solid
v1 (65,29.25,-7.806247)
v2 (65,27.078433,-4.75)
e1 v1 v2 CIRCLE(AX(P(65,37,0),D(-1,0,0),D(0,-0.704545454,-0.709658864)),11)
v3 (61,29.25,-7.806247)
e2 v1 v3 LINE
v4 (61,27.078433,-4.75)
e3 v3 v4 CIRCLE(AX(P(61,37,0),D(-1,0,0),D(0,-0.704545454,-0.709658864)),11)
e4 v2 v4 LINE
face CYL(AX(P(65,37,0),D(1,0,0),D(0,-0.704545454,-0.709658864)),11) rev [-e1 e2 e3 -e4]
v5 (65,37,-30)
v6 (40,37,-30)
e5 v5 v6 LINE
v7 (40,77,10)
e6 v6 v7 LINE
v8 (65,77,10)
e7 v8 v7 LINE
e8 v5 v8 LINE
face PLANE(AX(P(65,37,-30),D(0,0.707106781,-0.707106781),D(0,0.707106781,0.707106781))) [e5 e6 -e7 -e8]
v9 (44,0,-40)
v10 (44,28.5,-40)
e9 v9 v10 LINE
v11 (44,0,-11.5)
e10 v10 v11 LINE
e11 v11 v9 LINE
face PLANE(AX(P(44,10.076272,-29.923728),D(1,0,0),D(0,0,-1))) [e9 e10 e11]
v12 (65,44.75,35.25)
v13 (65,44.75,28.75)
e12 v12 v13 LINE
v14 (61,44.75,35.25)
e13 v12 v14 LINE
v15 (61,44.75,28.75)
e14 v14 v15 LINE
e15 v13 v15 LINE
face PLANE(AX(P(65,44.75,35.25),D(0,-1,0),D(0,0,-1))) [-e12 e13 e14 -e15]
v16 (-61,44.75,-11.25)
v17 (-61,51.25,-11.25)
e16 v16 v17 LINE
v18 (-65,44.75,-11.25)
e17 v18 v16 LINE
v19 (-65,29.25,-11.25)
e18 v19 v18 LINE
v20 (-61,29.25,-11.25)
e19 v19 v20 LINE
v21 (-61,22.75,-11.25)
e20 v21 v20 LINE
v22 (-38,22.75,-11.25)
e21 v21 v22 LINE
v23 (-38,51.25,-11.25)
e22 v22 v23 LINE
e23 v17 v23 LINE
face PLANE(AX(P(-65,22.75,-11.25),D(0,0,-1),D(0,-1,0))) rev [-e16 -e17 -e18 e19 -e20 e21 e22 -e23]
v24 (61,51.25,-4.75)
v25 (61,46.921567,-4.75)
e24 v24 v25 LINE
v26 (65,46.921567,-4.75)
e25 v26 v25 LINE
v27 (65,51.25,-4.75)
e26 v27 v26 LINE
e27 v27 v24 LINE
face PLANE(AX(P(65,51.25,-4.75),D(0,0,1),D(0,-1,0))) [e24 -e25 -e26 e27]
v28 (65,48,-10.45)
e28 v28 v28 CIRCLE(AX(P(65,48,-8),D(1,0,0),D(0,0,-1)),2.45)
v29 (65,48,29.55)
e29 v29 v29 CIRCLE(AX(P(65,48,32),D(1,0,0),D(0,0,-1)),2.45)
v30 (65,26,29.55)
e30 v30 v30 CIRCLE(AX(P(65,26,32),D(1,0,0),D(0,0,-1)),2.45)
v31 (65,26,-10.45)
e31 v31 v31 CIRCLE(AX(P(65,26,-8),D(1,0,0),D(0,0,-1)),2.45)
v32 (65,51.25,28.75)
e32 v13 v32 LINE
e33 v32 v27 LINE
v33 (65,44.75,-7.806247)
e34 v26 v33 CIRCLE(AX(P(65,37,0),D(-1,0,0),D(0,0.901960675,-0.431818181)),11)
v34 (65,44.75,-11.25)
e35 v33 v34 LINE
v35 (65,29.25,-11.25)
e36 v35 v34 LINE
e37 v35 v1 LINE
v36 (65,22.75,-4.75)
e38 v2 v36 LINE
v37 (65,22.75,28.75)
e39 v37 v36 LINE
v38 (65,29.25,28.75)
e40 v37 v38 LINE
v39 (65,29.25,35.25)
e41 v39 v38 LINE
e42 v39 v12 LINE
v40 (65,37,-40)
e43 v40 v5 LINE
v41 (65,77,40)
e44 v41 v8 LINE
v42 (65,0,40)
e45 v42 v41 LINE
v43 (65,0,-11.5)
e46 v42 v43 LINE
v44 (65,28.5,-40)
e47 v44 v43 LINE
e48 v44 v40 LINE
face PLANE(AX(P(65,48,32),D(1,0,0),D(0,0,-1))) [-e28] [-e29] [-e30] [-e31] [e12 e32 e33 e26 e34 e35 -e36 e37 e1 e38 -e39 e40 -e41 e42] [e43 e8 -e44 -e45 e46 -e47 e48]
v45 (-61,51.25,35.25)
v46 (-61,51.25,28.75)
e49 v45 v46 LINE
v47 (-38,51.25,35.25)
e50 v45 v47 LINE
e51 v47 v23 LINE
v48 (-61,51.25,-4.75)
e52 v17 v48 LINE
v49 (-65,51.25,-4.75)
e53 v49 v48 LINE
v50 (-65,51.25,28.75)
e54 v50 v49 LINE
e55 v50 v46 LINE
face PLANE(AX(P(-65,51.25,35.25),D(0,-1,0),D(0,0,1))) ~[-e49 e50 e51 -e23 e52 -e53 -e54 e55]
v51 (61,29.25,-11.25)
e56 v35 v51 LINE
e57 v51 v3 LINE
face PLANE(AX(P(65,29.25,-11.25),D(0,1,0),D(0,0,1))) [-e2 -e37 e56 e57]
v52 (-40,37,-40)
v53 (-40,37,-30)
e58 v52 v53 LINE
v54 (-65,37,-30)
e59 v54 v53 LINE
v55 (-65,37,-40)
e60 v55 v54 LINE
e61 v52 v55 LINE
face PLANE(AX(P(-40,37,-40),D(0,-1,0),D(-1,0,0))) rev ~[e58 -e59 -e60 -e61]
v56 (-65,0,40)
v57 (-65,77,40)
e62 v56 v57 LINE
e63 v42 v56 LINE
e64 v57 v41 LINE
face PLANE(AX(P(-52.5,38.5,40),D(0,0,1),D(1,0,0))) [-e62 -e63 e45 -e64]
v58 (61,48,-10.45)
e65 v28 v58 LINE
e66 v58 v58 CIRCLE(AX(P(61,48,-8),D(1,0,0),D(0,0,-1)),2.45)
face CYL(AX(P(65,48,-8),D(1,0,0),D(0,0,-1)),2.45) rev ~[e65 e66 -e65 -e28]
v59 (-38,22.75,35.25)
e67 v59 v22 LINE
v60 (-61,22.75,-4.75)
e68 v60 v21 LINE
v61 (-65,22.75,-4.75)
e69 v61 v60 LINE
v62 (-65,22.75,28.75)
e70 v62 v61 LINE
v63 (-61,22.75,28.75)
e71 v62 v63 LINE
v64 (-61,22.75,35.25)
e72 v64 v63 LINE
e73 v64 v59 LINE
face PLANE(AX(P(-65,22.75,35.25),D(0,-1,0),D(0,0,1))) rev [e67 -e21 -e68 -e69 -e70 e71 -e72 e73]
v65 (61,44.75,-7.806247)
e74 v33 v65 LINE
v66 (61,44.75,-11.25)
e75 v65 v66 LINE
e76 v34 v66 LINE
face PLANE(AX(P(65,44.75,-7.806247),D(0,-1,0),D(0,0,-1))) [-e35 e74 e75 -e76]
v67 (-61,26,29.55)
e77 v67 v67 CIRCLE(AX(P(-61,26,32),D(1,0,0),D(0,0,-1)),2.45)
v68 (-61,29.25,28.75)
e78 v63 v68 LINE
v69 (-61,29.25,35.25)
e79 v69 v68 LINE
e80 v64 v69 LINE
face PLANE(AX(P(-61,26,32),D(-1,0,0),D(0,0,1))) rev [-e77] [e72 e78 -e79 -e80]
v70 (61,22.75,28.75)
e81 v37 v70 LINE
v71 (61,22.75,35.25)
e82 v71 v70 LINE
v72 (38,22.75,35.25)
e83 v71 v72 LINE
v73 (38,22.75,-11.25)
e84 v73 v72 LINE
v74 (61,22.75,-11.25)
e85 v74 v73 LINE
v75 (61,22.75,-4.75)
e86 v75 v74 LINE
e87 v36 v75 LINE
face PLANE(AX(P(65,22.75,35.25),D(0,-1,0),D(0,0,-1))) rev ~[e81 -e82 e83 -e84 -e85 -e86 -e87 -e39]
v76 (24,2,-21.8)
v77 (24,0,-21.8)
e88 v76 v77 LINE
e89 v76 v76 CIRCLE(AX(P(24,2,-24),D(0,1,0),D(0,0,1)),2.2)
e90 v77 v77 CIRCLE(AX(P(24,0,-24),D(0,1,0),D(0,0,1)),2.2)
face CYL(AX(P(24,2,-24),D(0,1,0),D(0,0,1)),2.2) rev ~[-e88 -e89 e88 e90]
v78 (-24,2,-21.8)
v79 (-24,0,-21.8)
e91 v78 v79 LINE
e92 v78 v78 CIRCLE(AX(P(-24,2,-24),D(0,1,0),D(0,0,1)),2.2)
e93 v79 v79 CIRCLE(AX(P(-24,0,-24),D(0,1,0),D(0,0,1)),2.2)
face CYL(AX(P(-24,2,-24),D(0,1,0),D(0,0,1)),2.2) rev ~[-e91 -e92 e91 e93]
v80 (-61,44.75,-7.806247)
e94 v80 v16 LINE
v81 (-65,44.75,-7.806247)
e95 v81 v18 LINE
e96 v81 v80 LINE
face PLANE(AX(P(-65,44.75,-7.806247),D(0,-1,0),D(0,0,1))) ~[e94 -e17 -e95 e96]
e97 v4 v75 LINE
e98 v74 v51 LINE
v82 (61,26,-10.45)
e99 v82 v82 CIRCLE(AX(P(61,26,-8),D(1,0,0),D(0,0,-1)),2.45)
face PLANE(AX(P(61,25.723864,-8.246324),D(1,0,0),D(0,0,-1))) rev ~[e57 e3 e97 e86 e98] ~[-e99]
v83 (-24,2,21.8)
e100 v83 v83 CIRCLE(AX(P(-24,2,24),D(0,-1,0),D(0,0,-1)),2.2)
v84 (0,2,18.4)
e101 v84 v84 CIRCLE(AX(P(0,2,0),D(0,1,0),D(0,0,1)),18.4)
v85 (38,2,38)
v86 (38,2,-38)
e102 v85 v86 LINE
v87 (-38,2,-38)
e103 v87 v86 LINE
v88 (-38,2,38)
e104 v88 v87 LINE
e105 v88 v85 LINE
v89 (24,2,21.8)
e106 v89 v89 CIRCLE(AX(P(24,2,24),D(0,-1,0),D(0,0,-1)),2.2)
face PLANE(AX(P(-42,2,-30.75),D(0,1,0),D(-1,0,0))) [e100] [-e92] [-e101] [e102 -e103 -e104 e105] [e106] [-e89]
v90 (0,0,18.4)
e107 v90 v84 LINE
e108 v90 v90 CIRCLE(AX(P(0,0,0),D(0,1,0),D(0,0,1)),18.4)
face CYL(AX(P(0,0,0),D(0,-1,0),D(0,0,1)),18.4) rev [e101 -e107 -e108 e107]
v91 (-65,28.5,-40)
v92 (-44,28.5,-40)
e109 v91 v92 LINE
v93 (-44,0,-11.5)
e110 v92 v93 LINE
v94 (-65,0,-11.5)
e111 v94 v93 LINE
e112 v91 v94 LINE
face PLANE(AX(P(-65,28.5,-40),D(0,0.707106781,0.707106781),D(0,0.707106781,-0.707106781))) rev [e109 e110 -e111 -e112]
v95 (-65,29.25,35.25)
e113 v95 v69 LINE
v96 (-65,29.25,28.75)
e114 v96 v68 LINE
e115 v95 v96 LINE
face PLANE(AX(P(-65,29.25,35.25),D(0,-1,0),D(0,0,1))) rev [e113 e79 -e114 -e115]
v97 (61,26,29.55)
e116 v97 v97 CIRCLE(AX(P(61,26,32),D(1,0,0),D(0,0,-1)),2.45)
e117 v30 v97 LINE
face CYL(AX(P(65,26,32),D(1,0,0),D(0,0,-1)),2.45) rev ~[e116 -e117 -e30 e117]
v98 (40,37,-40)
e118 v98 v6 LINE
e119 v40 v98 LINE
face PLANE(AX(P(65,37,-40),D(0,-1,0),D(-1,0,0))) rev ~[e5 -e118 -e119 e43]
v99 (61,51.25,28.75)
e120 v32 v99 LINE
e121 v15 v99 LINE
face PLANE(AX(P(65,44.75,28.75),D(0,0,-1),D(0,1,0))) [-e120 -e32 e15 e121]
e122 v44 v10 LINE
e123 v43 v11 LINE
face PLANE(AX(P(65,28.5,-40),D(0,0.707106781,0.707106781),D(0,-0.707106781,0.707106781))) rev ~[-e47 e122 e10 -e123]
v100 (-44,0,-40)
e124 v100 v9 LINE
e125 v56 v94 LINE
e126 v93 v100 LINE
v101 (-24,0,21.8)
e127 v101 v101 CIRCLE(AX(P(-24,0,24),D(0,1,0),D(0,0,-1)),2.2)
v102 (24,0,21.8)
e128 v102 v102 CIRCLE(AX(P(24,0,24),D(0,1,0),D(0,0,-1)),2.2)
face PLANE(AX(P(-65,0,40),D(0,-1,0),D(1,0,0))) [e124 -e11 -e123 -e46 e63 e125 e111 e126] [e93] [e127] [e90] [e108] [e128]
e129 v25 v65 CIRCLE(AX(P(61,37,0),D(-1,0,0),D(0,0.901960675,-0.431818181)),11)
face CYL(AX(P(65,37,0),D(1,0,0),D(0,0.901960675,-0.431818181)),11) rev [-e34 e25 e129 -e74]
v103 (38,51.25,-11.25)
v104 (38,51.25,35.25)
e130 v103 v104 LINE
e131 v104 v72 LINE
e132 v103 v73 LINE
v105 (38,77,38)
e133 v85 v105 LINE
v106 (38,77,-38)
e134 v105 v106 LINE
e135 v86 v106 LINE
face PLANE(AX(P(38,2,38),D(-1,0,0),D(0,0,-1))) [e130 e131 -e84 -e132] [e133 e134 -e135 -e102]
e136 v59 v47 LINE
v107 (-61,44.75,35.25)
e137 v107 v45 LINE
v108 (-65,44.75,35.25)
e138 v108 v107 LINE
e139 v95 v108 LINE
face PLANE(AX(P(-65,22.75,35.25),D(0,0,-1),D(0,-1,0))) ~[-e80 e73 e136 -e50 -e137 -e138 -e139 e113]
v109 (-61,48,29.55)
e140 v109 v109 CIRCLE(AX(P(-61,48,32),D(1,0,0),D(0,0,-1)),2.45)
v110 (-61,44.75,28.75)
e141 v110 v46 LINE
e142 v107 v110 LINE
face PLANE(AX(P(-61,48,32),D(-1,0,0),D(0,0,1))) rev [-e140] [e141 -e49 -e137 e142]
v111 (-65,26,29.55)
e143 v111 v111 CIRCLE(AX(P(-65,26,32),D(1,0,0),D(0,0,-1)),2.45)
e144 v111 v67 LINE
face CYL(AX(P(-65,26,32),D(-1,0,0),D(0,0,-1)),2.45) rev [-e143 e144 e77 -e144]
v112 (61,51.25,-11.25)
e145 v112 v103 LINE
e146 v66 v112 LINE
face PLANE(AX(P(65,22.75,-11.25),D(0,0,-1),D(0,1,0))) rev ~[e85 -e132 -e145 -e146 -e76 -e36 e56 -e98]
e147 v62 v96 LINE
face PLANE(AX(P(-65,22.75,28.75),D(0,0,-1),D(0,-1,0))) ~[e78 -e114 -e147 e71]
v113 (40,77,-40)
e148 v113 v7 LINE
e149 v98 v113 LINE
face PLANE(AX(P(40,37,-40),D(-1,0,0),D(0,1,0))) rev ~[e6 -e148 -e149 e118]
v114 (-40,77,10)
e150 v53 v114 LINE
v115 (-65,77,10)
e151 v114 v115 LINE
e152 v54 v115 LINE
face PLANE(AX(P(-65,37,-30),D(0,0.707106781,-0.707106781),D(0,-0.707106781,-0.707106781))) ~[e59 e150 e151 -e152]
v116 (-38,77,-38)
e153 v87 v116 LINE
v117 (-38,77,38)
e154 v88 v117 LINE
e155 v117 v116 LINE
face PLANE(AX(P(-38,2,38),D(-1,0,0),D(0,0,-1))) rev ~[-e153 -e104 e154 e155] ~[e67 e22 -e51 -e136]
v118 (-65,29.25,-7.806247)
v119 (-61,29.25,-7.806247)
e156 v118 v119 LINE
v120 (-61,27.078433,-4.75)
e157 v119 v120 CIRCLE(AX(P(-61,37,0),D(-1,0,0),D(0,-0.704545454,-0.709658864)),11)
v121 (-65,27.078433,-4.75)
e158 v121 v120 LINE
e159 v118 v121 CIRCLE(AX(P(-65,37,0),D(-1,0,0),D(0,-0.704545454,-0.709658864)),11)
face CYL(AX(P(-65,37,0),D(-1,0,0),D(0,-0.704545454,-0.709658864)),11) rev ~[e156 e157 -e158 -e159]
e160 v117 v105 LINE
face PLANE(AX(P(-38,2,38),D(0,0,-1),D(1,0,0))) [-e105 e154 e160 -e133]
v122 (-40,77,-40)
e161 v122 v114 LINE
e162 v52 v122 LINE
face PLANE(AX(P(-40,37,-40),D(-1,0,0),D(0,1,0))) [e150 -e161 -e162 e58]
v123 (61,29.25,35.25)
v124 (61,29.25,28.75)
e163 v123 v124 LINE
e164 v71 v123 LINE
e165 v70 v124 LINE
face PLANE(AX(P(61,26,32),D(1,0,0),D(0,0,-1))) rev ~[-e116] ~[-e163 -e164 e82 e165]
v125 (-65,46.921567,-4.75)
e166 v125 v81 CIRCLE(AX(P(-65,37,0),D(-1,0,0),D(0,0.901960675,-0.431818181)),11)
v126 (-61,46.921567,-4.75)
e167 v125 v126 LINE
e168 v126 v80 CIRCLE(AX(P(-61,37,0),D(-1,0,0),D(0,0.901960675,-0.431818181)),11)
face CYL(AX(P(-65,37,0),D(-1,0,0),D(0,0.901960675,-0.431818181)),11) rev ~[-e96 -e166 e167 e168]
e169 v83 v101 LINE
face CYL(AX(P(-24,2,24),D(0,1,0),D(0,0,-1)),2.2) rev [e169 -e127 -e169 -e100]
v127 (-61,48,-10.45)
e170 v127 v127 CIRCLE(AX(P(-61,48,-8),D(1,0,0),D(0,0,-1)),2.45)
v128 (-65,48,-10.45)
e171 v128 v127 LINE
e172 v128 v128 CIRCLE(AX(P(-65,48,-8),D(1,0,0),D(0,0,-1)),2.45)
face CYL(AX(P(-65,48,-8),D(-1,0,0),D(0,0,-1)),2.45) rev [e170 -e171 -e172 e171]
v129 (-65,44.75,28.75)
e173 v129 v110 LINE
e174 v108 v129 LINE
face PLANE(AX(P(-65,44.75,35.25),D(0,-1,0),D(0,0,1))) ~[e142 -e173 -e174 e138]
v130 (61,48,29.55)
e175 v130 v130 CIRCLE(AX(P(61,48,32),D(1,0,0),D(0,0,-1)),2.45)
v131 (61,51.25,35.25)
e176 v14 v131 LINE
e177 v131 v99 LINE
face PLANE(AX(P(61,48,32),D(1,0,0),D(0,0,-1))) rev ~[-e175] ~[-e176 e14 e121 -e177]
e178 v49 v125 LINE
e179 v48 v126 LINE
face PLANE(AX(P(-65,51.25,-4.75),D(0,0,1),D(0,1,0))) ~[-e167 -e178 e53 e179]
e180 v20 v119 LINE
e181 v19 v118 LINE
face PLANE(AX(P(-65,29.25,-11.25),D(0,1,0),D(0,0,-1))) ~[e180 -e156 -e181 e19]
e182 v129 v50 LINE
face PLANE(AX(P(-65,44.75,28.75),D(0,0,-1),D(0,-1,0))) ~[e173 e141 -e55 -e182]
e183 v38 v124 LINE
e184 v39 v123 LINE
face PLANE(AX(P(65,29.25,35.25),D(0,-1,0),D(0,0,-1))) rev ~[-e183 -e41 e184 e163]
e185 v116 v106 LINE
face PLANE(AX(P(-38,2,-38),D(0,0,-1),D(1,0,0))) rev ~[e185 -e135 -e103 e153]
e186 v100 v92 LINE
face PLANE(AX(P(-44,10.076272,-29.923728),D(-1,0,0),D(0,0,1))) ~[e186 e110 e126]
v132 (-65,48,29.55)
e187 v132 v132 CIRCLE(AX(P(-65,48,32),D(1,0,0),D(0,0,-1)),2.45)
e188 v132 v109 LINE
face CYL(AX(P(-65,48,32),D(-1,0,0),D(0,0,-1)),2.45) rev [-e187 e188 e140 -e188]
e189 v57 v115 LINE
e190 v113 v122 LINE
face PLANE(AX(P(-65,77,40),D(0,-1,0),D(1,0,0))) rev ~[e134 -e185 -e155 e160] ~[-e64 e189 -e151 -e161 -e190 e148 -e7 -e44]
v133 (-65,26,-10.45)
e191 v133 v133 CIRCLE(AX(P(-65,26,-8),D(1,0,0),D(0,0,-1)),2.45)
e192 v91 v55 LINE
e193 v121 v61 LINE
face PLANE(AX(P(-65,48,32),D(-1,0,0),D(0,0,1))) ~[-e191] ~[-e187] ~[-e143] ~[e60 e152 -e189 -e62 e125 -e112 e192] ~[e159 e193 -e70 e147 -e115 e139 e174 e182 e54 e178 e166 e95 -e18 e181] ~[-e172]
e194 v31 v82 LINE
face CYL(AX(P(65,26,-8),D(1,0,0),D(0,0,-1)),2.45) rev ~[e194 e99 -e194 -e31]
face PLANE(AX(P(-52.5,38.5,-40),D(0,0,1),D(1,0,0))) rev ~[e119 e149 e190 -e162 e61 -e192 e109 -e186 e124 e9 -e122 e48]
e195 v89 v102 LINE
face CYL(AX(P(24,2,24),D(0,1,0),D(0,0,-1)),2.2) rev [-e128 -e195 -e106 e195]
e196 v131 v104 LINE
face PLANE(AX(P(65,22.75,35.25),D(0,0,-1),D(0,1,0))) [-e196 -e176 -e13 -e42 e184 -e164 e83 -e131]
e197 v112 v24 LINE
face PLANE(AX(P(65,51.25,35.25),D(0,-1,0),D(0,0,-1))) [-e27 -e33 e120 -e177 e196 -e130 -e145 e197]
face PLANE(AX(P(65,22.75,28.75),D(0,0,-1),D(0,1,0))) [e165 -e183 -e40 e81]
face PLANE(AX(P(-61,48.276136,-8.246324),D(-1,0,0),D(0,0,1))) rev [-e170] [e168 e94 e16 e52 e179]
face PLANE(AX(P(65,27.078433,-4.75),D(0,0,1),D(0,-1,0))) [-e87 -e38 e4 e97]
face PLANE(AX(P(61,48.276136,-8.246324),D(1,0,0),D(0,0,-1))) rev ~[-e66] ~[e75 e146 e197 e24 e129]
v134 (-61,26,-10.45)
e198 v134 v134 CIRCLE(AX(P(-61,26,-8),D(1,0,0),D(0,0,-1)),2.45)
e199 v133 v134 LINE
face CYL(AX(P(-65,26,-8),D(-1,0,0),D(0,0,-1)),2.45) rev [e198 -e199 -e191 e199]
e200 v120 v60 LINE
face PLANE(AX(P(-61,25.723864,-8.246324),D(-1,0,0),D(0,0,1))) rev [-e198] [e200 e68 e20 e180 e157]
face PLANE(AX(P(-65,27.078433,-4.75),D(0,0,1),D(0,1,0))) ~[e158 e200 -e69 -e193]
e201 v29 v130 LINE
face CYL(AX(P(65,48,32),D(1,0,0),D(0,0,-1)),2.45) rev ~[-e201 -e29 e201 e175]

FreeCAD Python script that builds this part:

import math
import FreeCAD as App
import Part
import Sketcher


def add_polygon(sketch, points):
    """Adds a closed chain of lines whose ends are joined by coincident constraints."""
    first, n = sketch.GeometryCount, len(points)
    for a, b in zip(points, points[1:] + points[:1]):
        sketch.addGeometry(Part.LineSegment(App.Vector(*a, 0), App.Vector(*b, 0)), False)
    for i in range(n):
        sketch.addConstraint(Sketcher.Constraint("Coincident", first + i, 2, first + (i + 1) % n, 1))

doc = App.newDocument("Part")
params = doc.addObject("Spreadsheet::Sheet", "Params")
for row, (alias, value) in enumerate([
    ("sketch1_diameter", "36.8 mm"),
    ("sketch1_width", "80 mm"),
    ("pad1_length", "2 mm"),
    ("sketch2_width", "4 mm"),
    ("sketch2_height", "18.5 mm"),
    ("pad2_length", "15.25 mm"),
    ("sketch3_diameter", "4.4 mm"),
    ("sketch4_width", "4 mm"),
    ("sketch4_height", "18.5 mm"),
    ("pad3_length", "15.25 mm"),
    ("sketch5_diameter", "4.4 mm"),
    ("sketch6_diameter", "4.4 mm"),
    ("sketch7_width", "4 mm"),
    ("sketch7_height", "15.25 mm"),
    ("sketch8_width", "80 mm"),
    ("sketch8_width2", "76 mm"),
    ("pad4_length", "75 mm"),
    ("sketch9_width", "25 mm"),
    ("sketch9_height", "77 mm"),
    ("pad5_length", "80 mm"),
    ("sketch10_width", "28.5 mm"),
    ("pocket5_length", "21 mm"),
    ("sketch11_width", "25 mm"),
    ("sketch11_height", "40 mm"),
    ("pocket6_length", "50 mm"),
    ("sketch12_width", "40 mm"),
    ("pad6_length", "25 mm"),
    ("sketch13_width", "28.5 mm"),
    ("sketch13_height", "46.5 mm"),
    ("pocket7_length", "34 mm"),
    ("sketch14_radius", "11 mm"),
    ("sketch14_diameter", "4.9 mm"),
    ("sketch14_width", "6.5 mm"),
    ("pad7_length", "4 mm"),
], start=1):
    params.set(f"A{row}", alias)
    params.set(f"B{row}", "=" + value)
    params.setAlias(f"B{row}", alias)

body = doc.addObject("PartDesign::Body", "Body")

sketch1 = body.newObject("Sketcher::SketchObject", "Sketch")
sketch1.AttachmentSupport = (doc.getObject("XZ_Plane"), [""])
sketch1.MapMode = "FlatFace"
add_polygon(sketch1, [(-40, -40), (-40, 40), (40, 40), (40, -40)])
sketch1.addGeometry(Part.Circle(App.Vector(0, 0, 0), App.Vector(0, 0, 1), 18), False)
sketch1.addConstraint([
    Sketcher.Constraint("Vertical", 0),
    Sketcher.Constraint("Horizontal", 1),
    Sketcher.Constraint("Vertical", 2),
    Sketcher.Constraint("Horizontal", 3),
    Sketcher.Constraint("Coincident", 4, 3, -1, 1),
    Sketcher.Constraint("Symmetric", 0, 2, 2, 2, -1, 1),
    Sketcher.Constraint("Equal", 3, 0),
    Sketcher.Constraint("Diameter", 4, 36.8),
    Sketcher.Constraint("DistanceX", 1, 1, 1, 2, 80.0),
])
sketch1.setExpression("Constraints[11]", "Params.sketch1_diameter")
sketch1.setExpression("Constraints[12]", "Params.sketch1_width")
pad1 = body.newObject("PartDesign::Pad", "Pad")
pad1.Profile = sketch1
pad1.setExpression("Length", "Params.pad1_length")
pad1.Reversed = True

sketch2 = body.newObject("Sketcher::SketchObject", "Sketch001")
sketch2.AttachmentSupport = (doc.getObject("XZ_Plane"), [""])
sketch2.MapMode = "FlatFace"
sketch2.AttachmentOffset = App.Placement(App.Vector(0, 0, -2), App.Rotation())
add_polygon(sketch2, [(40, 21.5), (40, 40), (44, 40), (44, 21.5)])
sketch2.addConstraint([
    Sketcher.Constraint("Vertical", 0),
    Sketcher.Constraint("Horizontal", 1),
    Sketcher.Constraint("Vertical", 2),
    Sketcher.Constraint("Horizontal", 3),
    Sketcher.Constraint("DistanceX", 1, 1, 1, 2, 4.0),
    Sketcher.Constraint("DistanceY", 0, 1, 0, 2, 18.5),
    Sketcher.Constraint("DistanceX", -1, 1, 0, 2, 40.0),
    Sketcher.Constraint("DistanceY", -1, 1, 0, 2, 40.0),
])
sketch2.setExpression("Constraints[8]", "Params.sketch2_width")
sketch2.setExpression("Constraints[9]", "Params.sketch2_height")
pad2 = body.newObject("PartDesign::Pad", "Pad001")
pad2.Profile = sketch2
pad2.setExpression("Length", "Params.pad2_length")

sketch3 = body.newObject("Sketcher::SketchObject", "Sketch002")
sketch3.AttachmentSupport = (doc.getObject("YZ_Plane"), [""])
sketch3.MapMode = "FlatFace"
sketch3.AttachmentOffset = App.Placement(App.Vector(0, 0, 44), App.Rotation())
sketch3.addGeometry(Part.Circle(App.Vector(-8.1, 30.8, 0), App.Vector(0, 0, 1), 2.2), False)
sketch3.addConstraint([
    Sketcher.Constraint("Diameter", 0, 4.4),
    Sketcher.Constraint("DistanceY", -1, 1, 0, 3, 30.75),
    Sketcher.Constraint("DistanceX", 0, 3, -1, 1, 8.125),
])
sketch3.setExpression("Constraints[0]", "Params.sketch3_diameter")
pocket1 = body.newObject("PartDesign::Pocket", "Pocket")
pocket1.Profile = sketch3
pocket1.Type = "ThroughAll"
doc.recompute()

mirrored = body.newObject("PartDesign::Mirrored", "Mirrored")
mirrored.Originals = [pad2, pocket1]
mirrored.MirrorPlane = (doc.getObject("YZ_Plane"), [""])
body.Tip = mirrored
doc.recompute()

mirrored2 = body.newObject("PartDesign::Mirrored", "Mirrored001")
mirrored2.Originals = [pad2, pocket1]
mirrored2.MirrorPlane = (doc.getObject("XY_Plane"), [""])
body.Tip = mirrored2

sketch4 = body.newObject("Sketcher::SketchObject", "Sketch003")
sketch4.AttachmentSupport = (doc.getObject("XZ_Plane"), [""])
sketch4.MapMode = "FlatFace"
sketch4.AttachmentOffset = App.Placement(App.Vector(0, 0, -2), App.Rotation())
add_polygon(sketch4, [(-40, -21.5), (-40, -40), (-44, -40), (-44, -21.5)])
sketch4.addConstraint([
    Sketcher.Constraint("Vertical", 0),
    Sketcher.Constraint("Horizontal", 1),
    Sketcher.Constraint("Vertical", 2),
    Sketcher.Constraint("Horizontal", 3),
    Sketcher.Constraint("DistanceX", 1, 2, 1, 1, 4.0),
    Sketcher.Constraint("DistanceY", 0, 2, 0, 1, 18.5),
    Sketcher.Constraint("DistanceX", 0, 2, -1, 1, 40.0),
    Sketcher.Constraint("DistanceY", 0, 2, -1, 1, 40.0),
])
sketch4.setExpression("Constraints[8]", "Params.sketch4_width")
sketch4.setExpression("Constraints[9]", "Params.sketch4_height")
pad3 = body.newObject("PartDesign::Pad", "Pad002")
pad3.Profile = sketch4
pad3.setExpression("Length", "Params.pad3_length")

sketch5 = body.newObject("Sketcher::SketchObject", "Sketch004")
sketch5.AttachmentSupport = (doc.getObject("YZ_Plane"), [""])
sketch5.MapMode = "FlatFace"
sketch5.AttachmentOffset = App.Placement(App.Vector(0, 0, -44), App.Rotation())
sketch5.addGeometry(Part.Circle(App.Vector(-8.1, -30.8, 0), App.Vector(0, 0, 1), 2.2), False)
sketch5.addConstraint([
    Sketcher.Constraint("Diameter", 0, 4.4),
    Sketcher.Constraint("DistanceY", 0, 3, -1, 1, 30.75),
    Sketcher.Constraint("DistanceX", 0, 3, -1, 1, 8.125),
])
sketch5.setExpression("Constraints[0]", "Params.sketch5_diameter")
pocket2 = body.newObject("PartDesign::Pocket", "Pocket001")
pocket2.Profile = sketch5
pocket2.Type = "ThroughAll"
pocket2.Reversed = True

sketch6 = body.newObject("Sketcher::SketchObject", "Sketch005")
sketch6.AttachmentSupport = (doc.getObject("XZ_Plane"), [""])
sketch6.MapMode = "FlatFace"
sketch6.AttachmentOffset = App.Placement(App.Vector(0, 0, -2), App.Rotation())
sketch6.addGeometry([
    Part.Circle(App.Vector(-24, -24, 0), App.Vector(0, 0, 1), 2.2),
    Part.Circle(App.Vector(24, -24, 0), App.Vector(0, 0, 1), 2.2),
], False)
sketch6.addConstraint([
    Sketcher.Constraint("Equal", 0, 1),
    Sketcher.Constraint("Symmetric", 0, 3, 1, 3, -2),
    Sketcher.Constraint("Diameter", 0, 4.4),
    Sketcher.Constraint("DistanceX", 0, 3, -1, 1, 24.0),
    Sketcher.Constraint("DistanceY", 0, 3, -1, 1, 24.0),
])
sketch6.setExpression("Constraints[2]", "Params.sketch6_diameter")
pocket3 = body.newObject("PartDesign::Pocket", "Pocket002")
pocket3.Profile = sketch6
pocket3.Type = "ThroughAll"
pocket3.Reversed = True
doc.recompute()

mirrored3 = body.newObject("PartDesign::Mirrored", "Mirrored002")
mirrored3.Originals = [pocket3]
mirrored3.MirrorPlane = (doc.getObject("XY_Plane"), [""])
body.Tip = mirrored3

sketch7 = body.newObject("Sketcher::SketchObject", "Sketch006")
sketch7.AttachmentSupport = (doc.getObject("XY_Plane"), [""])
sketch7.MapMode = "FlatFace"
sketch7.AttachmentOffset = App.Placement(App.Vector(0, 0, 40), App.Rotation())
add_polygon(sketch7, [(-44, 2), (-44, -13.2), (-40, -13.2), (-40, 2)])
add_polygon(sketch7, [(40, 2), (40, -13.2), (44, -13.2), (44, 2)])
sketch7.addConstraint([
    Sketcher.Constraint("Vertical", 0),
    Sketcher.Constraint("Horizontal", 1),
    Sketcher.Constraint("Vertical", 2),
    Sketcher.Constraint("Horizontal", 3),
    Sketcher.Constraint("Vertical", 4),
    Sketcher.Constraint("Horizontal", 5),
    Sketcher.Constraint("Vertical", 6),
    Sketcher.Constraint("Horizontal", 7),
    Sketcher.Constraint("Symmetric", 1, 2, 4, 2, -2),
    Sketcher.Constraint("Symmetric", 3, 2, 6, 2, -2),
    Sketcher.Constraint("DistanceX", 1, 1, 1, 2, 4.0),
    Sketcher.Constraint("DistanceX", 0, 2, -1, 1, 44.0),
    Sketcher.Constraint("DistanceY", -1, 1, 2, 2, 2.0),
    Sketcher.Constraint("DistanceY", 0, 2, 0, 1, 15.25),
])
sketch7.setExpression("Constraints[18]", "Params.sketch7_width")
sketch7.setExpression("Constraints[21]", "Params.sketch7_height")
pocket4 = body.newObject("PartDesign::Pocket", "Pocket003")
pocket4.Profile = sketch7
pocket4.Type = "ThroughAll"

sketch8 = body.newObject("Sketcher::SketchObject", "Sketch007")
sketch8.AttachmentSupport = (doc.getObject("XZ_Plane"), [""])
sketch8.MapMode = "FlatFace"
sketch8.AttachmentOffset = App.Placement(App.Vector(0, 0, -2), App.Rotation())
add_polygon(sketch8, [(-40, -40), (-40, 40), (40, 40), (40, -40)])
add_polygon(sketch8, [(38, 38), (-38, 38), (-38, -38), (38, -38)])
sketch8.addConstraint([
    Sketcher.Constraint("Vertical", 0),
    Sketcher.Constraint("Horizontal", 1),
    Sketcher.Constraint("Vertical", 2),
    Sketcher.Constraint("Horizontal", 3),
    Sketcher.Constraint("Horizontal", 4),
    Sketcher.Constraint("Vertical", 5),
    Sketcher.Constraint("Horizontal", 6),
    Sketcher.Constraint("Vertical", 7),
    Sketcher.Constraint("Symmetric", 0, 2, 2, 2, -1, 1),
    Sketcher.Constraint("Symmetric", 4, 2, 6, 2, -1, 1),
    Sketcher.Constraint("Equal", 3, 0),
    Sketcher.Constraint("Equal", 6, 5),
    Sketcher.Constraint("DistanceX", 1, 1, 1, 2, 80.0),
    Sketcher.Constraint("DistanceX", 4, 2, 4, 1, 76.0),
])
sketch8.setExpression("Constraints[20]", "Params.sketch8_width")
sketch8.setExpression("Constraints[21]", "Params.sketch8_width2")
pad4 = body.newObject("PartDesign::Pad", "Pad003")
pad4.Profile = sketch8
pad4.setExpression("Length", "Params.pad4_length")
pad4.Reversed = True

sketch9 = body.newObject("Sketcher::SketchObject", "Sketch008")
sketch9.AttachmentSupport = (doc.getObject("XY_Plane"), [""])
sketch9.MapMode = "FlatFace"
sketch9.AttachmentOffset = App.Placement(App.Vector(0, 0, 40), App.Rotation())
add_polygon(sketch9, [(-65, 77), (-65, 0), (-40, 0), (-40, 77)])
add_polygon(sketch9, [(40, 77), (40, 0), (65, 0), (65, 77)])
sketch9.addConstraint([
    Sketcher.Constraint("Vertical", 0),
    Sketcher.Constraint("Horizontal", 1),
    Sketcher.Constraint("Vertical", 2),
    Sketcher.Constraint("Horizontal", 3),
    Sketcher.Constraint("Vertical", 4),
    Sketcher.Constraint("Horizontal", 5),
    Sketcher.Constraint("Vertical", 6),
    Sketcher.Constraint("Horizontal", 7),
    Sketcher.Constraint("Symmetric", 1, 2, 4, 2, -1, 1),
    Sketcher.Constraint("Symmetric", 0, 2, 5, 2, -2),
    Sketcher.Constraint("Horizontal", 3, 2, 6, 2),
    Sketcher.Constraint("DistanceX", 1, 1, 1, 2, 25.0),
    Sketcher.Constraint("DistanceY", 0, 2, 0, 1, 77.0),
    Sketcher.Constraint("DistanceX", 0, 2, -1, 1, 65.0),
])
sketch9.setExpression("Constraints[19]", "Params.sketch9_width")
sketch9.setExpression("Constraints[20]", "Params.sketch9_height")
pad5 = body.newObject("PartDesign::Pad", "Pad004")
pad5.Profile = sketch9
pad5.setExpression("Length", "Params.pad5_length")
pad5.Reversed = True

sketch10 = body.newObject("Sketcher::SketchObject", "Sketch009")
sketch10.AttachmentSupport = (doc.getObject("YZ_Plane"), [""])
sketch10.MapMode = "FlatFace"
sketch10.AttachmentOffset = App.Placement(App.Vector(0, 0, 65), App.Rotation())
add_polygon(sketch10, [(0, -40), (28, -40), (0, -12)])
sketch10.addConstraint([
    Sketcher.Constraint("Horizontal", 0),
    Sketcher.Constraint("Vertical", 2),
    Sketcher.Constraint("PointOnObject", 1, 2, -2),
    Sketcher.Constraint("Equal", 0, 2),
    Sketcher.Constraint("DistanceX", 0, 1, 0, 2, 28.5),
    Sketcher.Constraint("DistanceY", 0, 2, -1, 1, 40.0),
])
sketch10.setExpression("Constraints[7]", "Params.sketch10_width")
pocket5 = body.newObject("PartDesign::Pocket", "Pocket004")
pocket5.Profile = sketch10
pocket5.setExpression("Length", "Params.pocket5_length")
doc.recompute()

mirrored4 = body.newObject("PartDesign::Mirrored", "Mirrored003")
mirrored4.Originals = [pocket5]
mirrored4.MirrorPlane = (doc.getObject("YZ_Plane"), [""])
body.Tip = mirrored4

sketch11 = body.newObject("Sketcher::SketchObject", "Sketch010")
sketch11.AttachmentSupport = (doc.getObject("XY_Plane"), [""])
sketch11.MapMode = "FlatFace"
sketch11.AttachmentOffset = App.Placement(App.Vector(0, 0, -40), App.Rotation())
add_polygon(sketch11, [(65, 77), (65, 37), (40, 37), (40, 77)])
add_polygon(sketch11, [(-40, 77), (-40, 37), (-65, 37), (-65, 77)])
sketch11.addConstraint([
    Sketcher.Constraint("Vertical", 0),
    Sketcher.Constraint("Horizontal", 1),
    Sketcher.Constraint("Vertical", 2),
    Sketcher.Constraint("Horizontal", 3),
    Sketcher.Constraint("Vertical", 4),
    Sketcher.Constraint("Horizontal", 5),
    Sketcher.Constraint("Vertical", 6),
    Sketcher.Constraint("Horizontal", 7),
    Sketcher.Constraint("Symmetric", 1, 2, 4, 2, -2),
    Sketcher.Constraint("Symmetric", 3, 2, 6, 2, -2),
    Sketcher.Constraint("DistanceX", 1, 2, 1, 1, 25.0),
    Sketcher.Constraint("DistanceY", 0, 2, 0, 1, 40.0),
    Sketcher.Constraint("DistanceX", -1, 1, 0, 2, 65.0),
    Sketcher.Constraint("DistanceY", -1, 1, 0, 2, 37.0),
])
sketch11.setExpression("Constraints[18]", "Params.sketch11_width")
sketch11.setExpression("Constraints[19]", "Params.sketch11_height")
pocket6 = body.newObject("PartDesign::Pocket", "Pocket005")
pocket6.Profile = sketch11
pocket6.setExpression("Length", "Params.pocket6_length")
pocket6.Reversed = True

sketch12 = body.newObject("Sketcher::SketchObject", "Sketch011")
sketch12.AttachmentSupport = (doc.getObject("YZ_Plane"), [""])
sketch12.MapMode = "FlatFace"
sketch12.AttachmentOffset = App.Placement(App.Vector(0, 0, 65), App.Rotation())
add_polygon(sketch12, [(37, -30), (77, 10), (37, 10)])
sketch12.addConstraint([
    Sketcher.Constraint("Horizontal", 1),
    Sketcher.Constraint("Vertical", 2),
    Sketcher.Constraint("Equal", 1, 2),
    Sketcher.Constraint("DistanceX", 1, 2, 1, 1, 40.0),
    Sketcher.Constraint("DistanceX", -1, 1, 0, 2, 77.0),
    Sketcher.Constraint("DistanceY", -1, 1, 0, 2, 10.0),
])
sketch12.setExpression("Constraints[6]", "Params.sketch12_width")
pad6 = body.newObject("PartDesign::Pad", "Pad005")
pad6.Profile = sketch12
pad6.setExpression("Length", "Params.pad6_length")
pad6.Reversed = True
doc.recompute()

mirrored5 = body.newObject("PartDesign::Mirrored", "Mirrored004")
mirrored5.Originals = [pad6]
mirrored5.MirrorPlane = (doc.getObject("YZ_Plane"), [""])
body.Tip = mirrored5

sketch13 = body.newObject("Sketcher::SketchObject", "Sketch012")
sketch13.AttachmentSupport = (doc.getObject("YZ_Plane"), [""])
sketch13.MapMode = "FlatFace"
sketch13.AttachmentOffset = App.Placement(App.Vector(0, 0, 65), App.Rotation())
add_polygon(sketch13, [(51, 35), (23, 35), (23, -11), (51, -11)])
sketch13.addConstraint([
    Sketcher.Constraint("Horizontal", 0),
    Sketcher.Constraint("Vertical", 1),
    Sketcher.Constraint("Horizontal", 2),
    Sketcher.Constraint("Vertical", 3),
    Sketcher.Constraint("DistanceX", 0, 2, 0, 1, 28.5),
    Sketcher.Constraint("DistanceY", 1, 2, 1, 1, 46.5),
    Sketcher.Constraint("DistanceX", -1, 1, 0, 2, 22.75),
    Sketcher.Constraint("DistanceY", -1, 1, 0, 2, 35.25),
])
sketch13.setExpression("Constraints[8]", "Params.sketch13_width")
sketch13.setExpression("Constraints[9]", "Params.sketch13_height")
pocket7 = body.newObject("PartDesign::Pocket", "Pocket006")
pocket7.Profile = sketch13
pocket7.setExpression("Length", "Params.pocket7_length")
doc.recompute()

mirrored6 = body.newObject("PartDesign::Mirrored", "Mirrored005")
mirrored6.Originals = [pocket7]
mirrored6.MirrorPlane = (doc.getObject("YZ_Plane"), [""])
body.Tip = mirrored6

sketch14 = body.newObject("Sketcher::SketchObject", "Sketch013")
sketch14.AttachmentSupport = (doc.getObject("YZ_Plane"), [""])
sketch14.MapMode = "FlatFace"
sketch14.AttachmentOffset = App.Placement(App.Vector(0, 0, 65), App.Rotation())
add_polygon(sketch14, [(51.2, 35.2), (44.8, 35.2), (44.8, 28.8), (51.2, 28.8)])
sketch14.addGeometry(Part.Circle(App.Vector(48, 32, 0), App.Vector(0, 0, 1), 2.5), False)
add_polygon(sketch14, [(29.2, 35.2), (22.8, 35.2), (22.8, 28.8), (29.2, 28.8)])
sketch14.addGeometry(Part.Circle(App.Vector(26, 32, 0), App.Vector(0, 0, 1), 2.5), False)
sketch14.addGeometry(Part.ArcOfCircle(Part.Circle(App.Vector(37, 0, 0), App.Vector(0, 0, 1), 11), math.radians(-154.42), math.radians(-134.79)), False)
sketch14.addGeometry(Part.LineSegment(App.Vector(27.1, -4.8, 0), App.Vector(22.8, -4.8, 0)), False)
sketch14.addGeometry(Part.LineSegment(App.Vector(22.8, -4.8, 0), App.Vector(22.8, -11.2, 0)), False)
sketch14.addGeometry(Part.LineSegment(App.Vector(22.8, -11.2, 0), App.Vector(29.2, -11.2, 0)), False)
sketch14.addGeometry(Part.LineSegment(App.Vector(29.2, -11.2, 0), App.Vector(29.2, -7.8, 0)), False)
sketch14.addGeometry(Part.Circle(App.Vector(26, -8, 0), App.Vector(0, 0, 1), 2.5), False)
sketch14.addGeometry(Part.LineSegment(App.Vector(51.2, -11.2, 0), App.Vector(51.2, -4.8, 0)), False)
sketch14.addGeometry(Part.LineSegment(App.Vector(51.2, -4.8, 0), App.Vector(46.9, -4.8, 0)), False)
sketch14.addGeometry(Part.ArcOfCircle(Part.Circle(App.Vector(37, 0, 0), App.Vector(0, 0, 1), 11), math.radians(-45.21), math.radians(-25.58)), False)
sketch14.addGeometry(Part.LineSegment(App.Vector(44.8, -7.8, 0), App.Vector(44.8, -11.2, 0)), False)
sketch14.addGeometry(Part.LineSegment(App.Vector(44.8, -11.2, 0), App.Vector(51.2, -11.2, 0)), False)
sketch14.addGeometry(Part.Circle(App.Vector(48, -8, 0), App.Vector(0, 0, 1), 2.5), False)
sketch14.addConstraint([
    Sketcher.Constraint("Coincident", 10, 1, 11, 1),
    Sketcher.Constraint("Coincident", 11, 2, 12, 1),
    Sketcher.Constraint("Coincident", 12, 2, 13, 1),
    Sketcher.Constraint("Coincident", 13, 2, 14, 1),
    Sketcher.Constraint("Coincident", 14, 2, 10, 2),
    Sketcher.Constraint("Coincident", 16, 2, 17, 1),
    Sketcher.Constraint("Coincident", 17, 2, 18, 2),
    Sketcher.Constraint("Coincident", 18, 1, 19, 1),
    Sketcher.Constraint("Coincident", 19, 2, 20, 1),
    Sketcher.Constraint("Coincident", 20, 2, 16, 1),
    Sketcher.Constraint("Horizontal", 0),
    Sketcher.Constraint("Vertical", 1),
    Sketcher.Constraint("Horizontal", 2),
    Sketcher.Constraint("Vertical", 3),
    Sketcher.Constraint("Horizontal", 5),
    Sketcher.Constraint("Vertical", 6),
    Sketcher.Constraint("Horizontal", 7),
    Sketcher.Constraint("Vertical", 8),
    Sketcher.Constraint("Horizontal", 11),
    Sketcher.Constraint("Vertical", 12),
    Sketcher.Constraint("Horizontal", 13),
    Sketcher.Constraint("Vertical", 14),
    Sketcher.Constraint("Vertical", 16),
    Sketcher.Constraint("Horizontal", 17),
    Sketcher.Constraint("Vertical", 19),
    Sketcher.Constraint("Horizontal", 20),
    Sketcher.Constraint("Coincident", 18, 3, 10, 3),
    Sketcher.Constraint("Equal", 4, 9),
    Sketcher.Constraint("Equal", 9, 15),
    Sketcher.Constraint("Equal", 10, 18),
    Sketcher.Constraint("Equal", 15, 21),
    Sketcher.Constraint("PointOnObject", 10, 3, -1),
    Sketcher.Constraint("Horizontal", 4, 3, 9, 3),
    Sketcher.Constraint("Horizontal", 15, 3, 21, 3),
    Sketcher.Constraint("Horizontal", 3, 2, 5, 2),
    Sketcher.Constraint("Horizontal", 2, 2, 6, 2),
    Sketcher.Constraint("Horizontal", 11, 2, 16, 2),
    Sketcher.Constraint("Horizontal", 14, 2, 18, 1),
    Sketcher.Constraint("Horizontal", 13, 2, 19, 2),
    Sketcher.Constraint("Vertical", 9, 3, 15, 3),
    Sketcher.Constraint("Vertical", 4, 3, 21, 3),
    Sketcher.Constraint("Vertical", 6, 2, 11, 2),
    Sketcher.Constraint("Vertical", 8, 2, 13, 2),
    Sketcher.Constraint("Vertical", 3, 2, 16, 2),
    Sketcher.Constraint("Vertical", 1, 2, 18, 1),
    Sketcher.Constraint("Equal", 2, 5),
    Sketcher.Constraint("Equal", 20, 1),
    Sketcher.Constraint("Equal", 8, 12),
    Sketcher.Constraint("Radius", 10, 11.0),
    Sketcher.Constraint("Diameter", 4, 4.9),
    Sketcher.Constraint("DistanceX", 0, 2, 0, 1, 6.5),
    Sketcher.Constraint("DistanceX", -1, 1, 4, 3, 48.0),
    Sketcher.Constraint("DistanceY", -1, 1, 4, 3, 32.0),
    Sketcher.Constraint("DistanceX", -1, 1, 9, 3, 26.0),
    Sketcher.Constraint("DistanceX", -1, 1, 10, 3, 37.0),
    Sketcher.Constraint("DistanceY", 15, 3, -1, 1, 8.0),
    Sketcher.Constraint("DistanceX", 5, 2, 0, 2, 22.0),
    Sketcher.Constraint("DistanceY", 10, 1, 7, 2, 33.5),
    Sketcher.Constraint("DistanceY", -1, 1, 0, 2, 35.25),
])
sketch14.setExpression("Constraints[56]", "Params.sketch14_radius")
sketch14.setExpression("Constraints[57]", "Params.sketch14_diameter")
sketch14.setExpression("Constraints[58]", "Params.sketch14_width")
pad7 = body.newObject("PartDesign::Pad", "Pad006")
pad7.Profile = sketch14
pad7.setExpression("Length", "Params.pad7_length")
pad7.Reversed = True
doc.recompute()

mirrored7 = body.newObject("PartDesign::Mirrored", "Mirrored006")
mirrored7.Originals = [pad7]
mirrored7.MirrorPlane = (doc.getObject("YZ_Plane"), [""])
body.Tip = mirrored7

doc.recompute()
